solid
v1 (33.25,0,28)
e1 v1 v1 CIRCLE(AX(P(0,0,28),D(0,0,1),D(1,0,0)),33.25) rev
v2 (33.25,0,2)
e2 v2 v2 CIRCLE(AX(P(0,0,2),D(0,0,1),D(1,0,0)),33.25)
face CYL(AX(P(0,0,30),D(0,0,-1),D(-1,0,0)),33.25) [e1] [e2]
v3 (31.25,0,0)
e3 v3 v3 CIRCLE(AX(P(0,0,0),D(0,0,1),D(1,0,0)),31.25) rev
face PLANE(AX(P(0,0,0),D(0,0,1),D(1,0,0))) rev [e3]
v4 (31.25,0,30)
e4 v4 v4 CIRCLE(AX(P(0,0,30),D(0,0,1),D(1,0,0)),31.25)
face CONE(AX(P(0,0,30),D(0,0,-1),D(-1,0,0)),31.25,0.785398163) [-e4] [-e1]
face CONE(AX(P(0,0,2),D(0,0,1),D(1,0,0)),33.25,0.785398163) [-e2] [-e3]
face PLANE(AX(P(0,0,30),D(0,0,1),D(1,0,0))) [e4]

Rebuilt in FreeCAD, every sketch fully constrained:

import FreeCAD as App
import Part
import Sketcher
from FreeCAD import Vector
Q = App.Units.Quantity


def edges_at(feature, points):
    """Names of the edges that pass closest to the given points."""
    edges = feature.Shape.Edges
    near = lambda p: min(range(len(edges)), key=lambda i: edges[i].distToShape(Part.Vertex(*p))[0])
    return sorted({f"Edge{near(p) + 1}" for p in points})

doc = App.newDocument("Part")
params = doc.addObject("Spreadsheet::Sheet", "Params")
for row, (alias, value) in enumerate([
    ("sketch1_diameter", "66.5 mm"),
    ("pad1_length", "30 mm"),
    ("chamfer_size", "2 mm"),
    ("chamfer2_size", "2 mm"),
], start=1):
    params.set(f"A{row}", alias)
    params.set(f"B{row}", "=" + value)
    params.setAlias(f"B{row}", alias)

body = doc.addObject("PartDesign::Body", "Body")

# Sketch on XY plane
sketch1 = body.newObject("Sketcher::SketchObject", "Sketch")
sketch1.AttachmentSupport = (doc.getObject("XY_Plane"), [""])
sketch1.MapMode = "FlatFace"
sketch1.addGeometry(Part.Circle(Vector(0, 0, 0), Vector(0, 0, 1), 33), False)
sketch1.addConstraint(Sketcher.Constraint("Coincident", 0, 3, -1, 1))
sketch1.addConstraint(Sketcher.Constraint("Diameter", 0, Q("66.5 mm")))
sketch1.setExpression("Constraints[1]", "Params.sketch1_diameter")
pad1 = body.newObject("PartDesign::Pad", "Pad")
pad1.Profile = sketch1
pad1.setExpression("Length", "Params.pad1_length")
doc.recompute()

chamfer = body.newObject("PartDesign::Chamfer", "Chamfer")
chamfer.Base = (pad1, edges_at(pad1, [(-33.25, 0, 30)]))
chamfer.setExpression("Size", "Params.chamfer_size")
doc.recompute()

chamfer2 = body.newObject("PartDesign::Chamfer", "Chamfer001")
chamfer2.Base = (chamfer, edges_at(chamfer, [(-33.25, 0, 0)]))
chamfer2.setExpression("Size", "Params.chamfer2_size")

doc.recompute()
